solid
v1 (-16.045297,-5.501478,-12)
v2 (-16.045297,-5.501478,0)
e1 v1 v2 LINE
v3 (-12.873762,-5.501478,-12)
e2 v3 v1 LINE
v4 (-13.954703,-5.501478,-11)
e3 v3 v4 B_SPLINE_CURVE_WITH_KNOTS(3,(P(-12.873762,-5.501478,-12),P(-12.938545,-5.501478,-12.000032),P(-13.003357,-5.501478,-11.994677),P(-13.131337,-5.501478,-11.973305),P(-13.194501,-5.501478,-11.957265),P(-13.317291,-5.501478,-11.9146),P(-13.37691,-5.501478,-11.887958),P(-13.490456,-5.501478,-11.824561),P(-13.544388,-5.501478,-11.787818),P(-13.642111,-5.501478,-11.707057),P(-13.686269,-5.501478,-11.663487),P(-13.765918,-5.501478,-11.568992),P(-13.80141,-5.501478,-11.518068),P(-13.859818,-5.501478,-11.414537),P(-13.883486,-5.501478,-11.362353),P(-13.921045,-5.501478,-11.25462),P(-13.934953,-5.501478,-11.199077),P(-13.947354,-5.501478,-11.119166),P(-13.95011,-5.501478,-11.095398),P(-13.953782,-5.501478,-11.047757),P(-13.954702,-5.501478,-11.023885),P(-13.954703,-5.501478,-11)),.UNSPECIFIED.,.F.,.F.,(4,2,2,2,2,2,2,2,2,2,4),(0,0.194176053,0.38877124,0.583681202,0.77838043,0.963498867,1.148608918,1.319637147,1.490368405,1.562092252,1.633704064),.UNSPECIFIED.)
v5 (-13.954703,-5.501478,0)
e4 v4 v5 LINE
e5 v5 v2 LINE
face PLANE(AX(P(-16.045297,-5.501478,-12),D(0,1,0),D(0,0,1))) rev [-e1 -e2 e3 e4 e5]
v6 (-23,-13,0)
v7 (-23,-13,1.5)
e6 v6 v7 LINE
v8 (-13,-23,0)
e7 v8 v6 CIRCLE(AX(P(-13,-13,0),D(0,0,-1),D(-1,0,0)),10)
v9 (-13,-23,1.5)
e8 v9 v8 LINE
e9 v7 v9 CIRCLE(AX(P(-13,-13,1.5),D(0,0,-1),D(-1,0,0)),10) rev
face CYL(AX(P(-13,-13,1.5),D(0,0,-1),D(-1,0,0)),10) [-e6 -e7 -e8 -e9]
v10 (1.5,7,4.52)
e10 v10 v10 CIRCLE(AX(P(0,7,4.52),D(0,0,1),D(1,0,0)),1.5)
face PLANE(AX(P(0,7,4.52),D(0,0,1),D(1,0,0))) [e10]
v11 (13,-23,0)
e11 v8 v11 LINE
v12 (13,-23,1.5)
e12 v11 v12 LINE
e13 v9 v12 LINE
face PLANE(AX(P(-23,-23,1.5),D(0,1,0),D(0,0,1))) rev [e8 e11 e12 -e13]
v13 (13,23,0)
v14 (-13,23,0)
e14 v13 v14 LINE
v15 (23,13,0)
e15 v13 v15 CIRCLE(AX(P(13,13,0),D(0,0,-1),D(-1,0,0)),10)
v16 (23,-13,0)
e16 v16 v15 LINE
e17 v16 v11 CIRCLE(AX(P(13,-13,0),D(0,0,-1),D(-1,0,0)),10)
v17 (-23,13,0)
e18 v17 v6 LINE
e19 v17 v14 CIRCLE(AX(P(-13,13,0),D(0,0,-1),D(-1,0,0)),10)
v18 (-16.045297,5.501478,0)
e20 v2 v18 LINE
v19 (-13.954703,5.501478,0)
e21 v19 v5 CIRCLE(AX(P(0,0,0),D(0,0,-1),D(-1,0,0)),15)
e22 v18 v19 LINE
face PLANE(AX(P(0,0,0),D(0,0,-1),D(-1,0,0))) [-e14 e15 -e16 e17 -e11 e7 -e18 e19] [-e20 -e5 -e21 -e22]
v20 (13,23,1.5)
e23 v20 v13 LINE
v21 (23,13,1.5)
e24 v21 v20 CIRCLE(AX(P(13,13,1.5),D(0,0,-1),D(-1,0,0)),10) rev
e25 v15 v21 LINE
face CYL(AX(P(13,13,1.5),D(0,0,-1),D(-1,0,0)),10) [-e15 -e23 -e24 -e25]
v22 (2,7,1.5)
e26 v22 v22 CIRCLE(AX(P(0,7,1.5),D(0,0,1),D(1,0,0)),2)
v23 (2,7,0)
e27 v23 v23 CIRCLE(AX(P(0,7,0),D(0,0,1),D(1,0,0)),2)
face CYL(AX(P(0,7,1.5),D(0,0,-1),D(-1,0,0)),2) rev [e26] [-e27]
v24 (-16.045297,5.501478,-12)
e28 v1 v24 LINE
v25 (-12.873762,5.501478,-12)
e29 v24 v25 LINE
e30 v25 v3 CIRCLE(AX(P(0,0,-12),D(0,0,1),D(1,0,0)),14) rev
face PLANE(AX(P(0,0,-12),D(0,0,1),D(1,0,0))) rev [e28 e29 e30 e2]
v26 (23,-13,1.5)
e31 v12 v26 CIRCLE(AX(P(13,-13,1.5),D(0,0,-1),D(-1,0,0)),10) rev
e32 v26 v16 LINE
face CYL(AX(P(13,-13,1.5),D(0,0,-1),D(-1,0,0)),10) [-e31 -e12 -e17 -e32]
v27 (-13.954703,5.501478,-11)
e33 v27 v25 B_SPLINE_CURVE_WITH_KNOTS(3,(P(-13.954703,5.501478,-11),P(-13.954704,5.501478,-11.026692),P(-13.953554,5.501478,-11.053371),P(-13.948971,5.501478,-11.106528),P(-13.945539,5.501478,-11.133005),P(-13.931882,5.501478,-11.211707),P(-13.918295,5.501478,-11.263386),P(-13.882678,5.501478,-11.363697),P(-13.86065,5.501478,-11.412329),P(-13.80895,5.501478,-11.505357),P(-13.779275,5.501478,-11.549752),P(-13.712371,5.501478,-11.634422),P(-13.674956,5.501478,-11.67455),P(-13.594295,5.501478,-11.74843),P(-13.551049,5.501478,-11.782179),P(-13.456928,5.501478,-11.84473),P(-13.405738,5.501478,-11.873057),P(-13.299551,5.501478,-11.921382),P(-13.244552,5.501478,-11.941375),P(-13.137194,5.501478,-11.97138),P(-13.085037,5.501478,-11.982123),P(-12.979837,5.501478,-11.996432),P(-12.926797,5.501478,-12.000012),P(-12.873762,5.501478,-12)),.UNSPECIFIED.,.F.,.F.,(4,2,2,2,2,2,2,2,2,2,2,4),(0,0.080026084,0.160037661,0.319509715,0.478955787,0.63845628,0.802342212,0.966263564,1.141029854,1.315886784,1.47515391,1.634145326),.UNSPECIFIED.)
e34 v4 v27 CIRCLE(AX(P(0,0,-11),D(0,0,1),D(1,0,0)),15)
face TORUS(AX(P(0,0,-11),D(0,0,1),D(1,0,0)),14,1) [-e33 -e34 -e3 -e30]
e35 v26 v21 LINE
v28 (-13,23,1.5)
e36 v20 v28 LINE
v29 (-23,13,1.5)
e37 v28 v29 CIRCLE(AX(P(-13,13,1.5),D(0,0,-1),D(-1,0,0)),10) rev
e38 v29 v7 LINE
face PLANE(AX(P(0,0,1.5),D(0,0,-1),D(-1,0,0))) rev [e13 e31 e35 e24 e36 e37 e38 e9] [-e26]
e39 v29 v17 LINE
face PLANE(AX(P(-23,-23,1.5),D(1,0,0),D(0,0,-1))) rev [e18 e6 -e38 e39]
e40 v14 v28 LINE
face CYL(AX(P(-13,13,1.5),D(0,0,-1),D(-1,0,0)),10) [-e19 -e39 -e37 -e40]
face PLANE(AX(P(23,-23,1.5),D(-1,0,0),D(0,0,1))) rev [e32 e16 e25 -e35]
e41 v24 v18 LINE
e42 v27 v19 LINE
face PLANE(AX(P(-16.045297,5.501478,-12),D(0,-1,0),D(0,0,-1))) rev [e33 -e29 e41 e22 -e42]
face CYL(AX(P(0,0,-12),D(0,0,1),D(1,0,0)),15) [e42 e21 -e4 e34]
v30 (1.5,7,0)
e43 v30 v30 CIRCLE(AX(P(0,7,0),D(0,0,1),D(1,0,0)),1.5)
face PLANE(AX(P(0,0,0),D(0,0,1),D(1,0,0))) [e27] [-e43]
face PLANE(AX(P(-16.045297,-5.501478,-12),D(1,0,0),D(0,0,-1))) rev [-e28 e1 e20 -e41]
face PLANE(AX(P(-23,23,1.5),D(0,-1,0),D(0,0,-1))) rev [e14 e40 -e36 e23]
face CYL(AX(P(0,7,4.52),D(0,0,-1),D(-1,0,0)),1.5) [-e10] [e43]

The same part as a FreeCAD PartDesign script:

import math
import FreeCAD as App
import Part
import Sketcher
Q = App.Units.Quantity


def edges_at(feature, points):
    """Names of the edges that pass closest to the given points."""
    edges = feature.Shape.Edges
    near = lambda p: min(range(len(edges)), key=lambda i: edges[i].distToShape(Part.Vertex(*p))[0])
    return sorted({f"Edge{near(p) + 1}" for p in points})


def add_polygon(sketch, points):
    """Adds a closed chain of lines whose ends are joined by coincident constraints."""
    first, n = sketch.GeometryCount, len(points)
    for a, b in zip(points, points[1:] + points[:1]):
        sketch.addGeometry(Part.LineSegment(App.Vector(*a, 0), App.Vector(*b, 0)), False)
    for i in range(n):
        sketch.addConstraint(Sketcher.Constraint("Coincident", first + i, 2, first + (i + 1) % n, 1))

doc = App.newDocument("Part")
body = doc.addObject("PartDesign::Body", "Body")

# Sketch on XY plane
sketch1 = body.newObject("Sketcher::SketchObject", "Sketch")
sketch1.AttachmentSupport = (doc.getObject("XY_Plane"), [""])
sketch1.MapMode = "FlatFace"
add_polygon(sketch1, [(-23, 23), (-23, -23), (23, -23), (23, 23)])  # lines 0-3
sketch1.addGeometry(Part.Circle(App.Vector(0, 7, 0), App.Vector(0, 0, 1), 2), False)  # 4
sketch1.addConstraint([
    Sketcher.Constraint("Vertical", 0),
    Sketcher.Constraint("Horizontal", 1),
    Sketcher.Constraint("Vertical", 2),
    Sketcher.Constraint("Horizontal", 3),
    Sketcher.Constraint("Symmetric", 0, 2, 2, 2, -1, 1),
    Sketcher.Constraint("PointOnObject", 4, 3, -2),
    Sketcher.Constraint("Equal", 3, 0),
    Sketcher.Constraint("Diameter", 4, Q("4 mm")),
    Sketcher.Constraint("DistanceX", 1, 1, 1, 2, Q("46 mm")),
    Sketcher.Constraint("DistanceY", -1, 1, 4, 3, Q("7 mm")),
])
pad1 = body.newObject("PartDesign::Pad", "Pad")
pad1.Profile = sketch1
pad1.Length = 1.5

# Sketch on XY plane
sketch2 = body.newObject("Sketcher::SketchObject", "Sketch001")
sketch2.AttachmentSupport = (doc.getObject("XY_Plane"), [""])
sketch2.MapMode = "FlatFace"
sketch2.addGeometry([
    Part.LineSegment(App.Vector(-14, -5.5, 0), App.Vector(-16, -5.5, 0)),  # 0
    Part.LineSegment(App.Vector(-16, -5.5, 0), App.Vector(-16, 5.5, 0)),  # 1
    Part.LineSegment(App.Vector(-16, 5.5, 0), App.Vector(-14, 5.5, 0)),  # 2
    Part.ArcOfCircle(Part.Circle(App.Vector(0, 0, 0), App.Vector(0, 0, 1), 15), math.radians(-61), math.radians(158)),  # 3
    Part.ArcOfCircle(Part.Circle(App.Vector(0, 0, 0), App.Vector(0, 0, 1), 15), math.radians(-119), math.radians(-61)),  # 4
    Part.ArcOfCircle(Part.Circle(App.Vector(0, 0, 0), App.Vector(0, 0, 1), 15), math.radians(-158), math.radians(-119)),  # 5
], False)
sketch2.addConstraint([
    Sketcher.Constraint("Coincident", 0, 2, 1, 1),
    Sketcher.Constraint("Coincident", 1, 2, 2, 1),
    Sketcher.Constraint("Coincident", 2, 2, 3, 2),
    Sketcher.Constraint("Tangent", 3, 1, 4, 2),
    Sketcher.Constraint("Tangent", 4, 1, 5, 2),
    Sketcher.Constraint("Coincident", 5, 1, 0, 1),
    Sketcher.Constraint("Horizontal", 0),
    Sketcher.Constraint("Vertical", 1),
    Sketcher.Constraint("Horizontal", 2),
    Sketcher.Constraint("Coincident", 3, 3, -1, 1),
    Sketcher.Constraint("Coincident", 5, 3, -1, 1),
    Sketcher.Constraint("Horizontal", 3, 1, 4, 1),
    Sketcher.Constraint("Vertical", 2, 2, 5, 1),
    Sketcher.Constraint("Radius", 3, Q("15 mm")),
    Sketcher.Constraint("DistanceX", 0, 2, 0, 1, Q("2.090594 mm")),
    Sketcher.Constraint("DistanceY", 1, 1, 1, 2, Q("11.002956 mm")),
    Sketcher.Constraint("DistanceX", -1, 1, 3, 1, Q("7.352141 mm")),
])
pad2 = body.newObject("PartDesign::Pad", "Pad001")
pad2.Profile = sketch2
pad2.Length = 12
pad2.Reversed = True
doc.recompute()

fillet = body.newObject("PartDesign::Fillet", "Fillet")
fillet.Base = (pad2, edges_at(pad2, [(9.857, 11.306, -12)]))
fillet.Radius = 1

# Sketch on XY plane
sketch3 = body.newObject("Sketcher::SketchObject", "Sketch002")
sketch3.AttachmentSupport = (doc.getObject("XY_Plane"), [""])
sketch3.MapMode = "FlatFace"
sketch3.addGeometry(Part.Circle(App.Vector(0, 7, 0), App.Vector(0, 0, 1), 1.5), False)
sketch3.addConstraint([
    Sketcher.Constraint("PointOnObject", 0, 3, -2),
    Sketcher.Constraint("Diameter", 0, Q("3 mm")),
    Sketcher.Constraint("DistanceY", -1, 1, 0, 3, Q("7 mm")),
])
pad3 = body.newObject("PartDesign::Pad", "Pad002")
pad3.Profile = sketch3
pad3.Length = 4.52
doc.recompute()

fillet2 = body.newObject("PartDesign::Fillet", "Fillet001")
fillet2.Base = (pad3, edges_at(pad3, [
    (23, -23, 0.75),
    (-23, -23, 0.75),
    (-23, 23, 0.75),
    (23, 23, 0.75),
]))
fillet2.Radius = 10

doc.recompute()
